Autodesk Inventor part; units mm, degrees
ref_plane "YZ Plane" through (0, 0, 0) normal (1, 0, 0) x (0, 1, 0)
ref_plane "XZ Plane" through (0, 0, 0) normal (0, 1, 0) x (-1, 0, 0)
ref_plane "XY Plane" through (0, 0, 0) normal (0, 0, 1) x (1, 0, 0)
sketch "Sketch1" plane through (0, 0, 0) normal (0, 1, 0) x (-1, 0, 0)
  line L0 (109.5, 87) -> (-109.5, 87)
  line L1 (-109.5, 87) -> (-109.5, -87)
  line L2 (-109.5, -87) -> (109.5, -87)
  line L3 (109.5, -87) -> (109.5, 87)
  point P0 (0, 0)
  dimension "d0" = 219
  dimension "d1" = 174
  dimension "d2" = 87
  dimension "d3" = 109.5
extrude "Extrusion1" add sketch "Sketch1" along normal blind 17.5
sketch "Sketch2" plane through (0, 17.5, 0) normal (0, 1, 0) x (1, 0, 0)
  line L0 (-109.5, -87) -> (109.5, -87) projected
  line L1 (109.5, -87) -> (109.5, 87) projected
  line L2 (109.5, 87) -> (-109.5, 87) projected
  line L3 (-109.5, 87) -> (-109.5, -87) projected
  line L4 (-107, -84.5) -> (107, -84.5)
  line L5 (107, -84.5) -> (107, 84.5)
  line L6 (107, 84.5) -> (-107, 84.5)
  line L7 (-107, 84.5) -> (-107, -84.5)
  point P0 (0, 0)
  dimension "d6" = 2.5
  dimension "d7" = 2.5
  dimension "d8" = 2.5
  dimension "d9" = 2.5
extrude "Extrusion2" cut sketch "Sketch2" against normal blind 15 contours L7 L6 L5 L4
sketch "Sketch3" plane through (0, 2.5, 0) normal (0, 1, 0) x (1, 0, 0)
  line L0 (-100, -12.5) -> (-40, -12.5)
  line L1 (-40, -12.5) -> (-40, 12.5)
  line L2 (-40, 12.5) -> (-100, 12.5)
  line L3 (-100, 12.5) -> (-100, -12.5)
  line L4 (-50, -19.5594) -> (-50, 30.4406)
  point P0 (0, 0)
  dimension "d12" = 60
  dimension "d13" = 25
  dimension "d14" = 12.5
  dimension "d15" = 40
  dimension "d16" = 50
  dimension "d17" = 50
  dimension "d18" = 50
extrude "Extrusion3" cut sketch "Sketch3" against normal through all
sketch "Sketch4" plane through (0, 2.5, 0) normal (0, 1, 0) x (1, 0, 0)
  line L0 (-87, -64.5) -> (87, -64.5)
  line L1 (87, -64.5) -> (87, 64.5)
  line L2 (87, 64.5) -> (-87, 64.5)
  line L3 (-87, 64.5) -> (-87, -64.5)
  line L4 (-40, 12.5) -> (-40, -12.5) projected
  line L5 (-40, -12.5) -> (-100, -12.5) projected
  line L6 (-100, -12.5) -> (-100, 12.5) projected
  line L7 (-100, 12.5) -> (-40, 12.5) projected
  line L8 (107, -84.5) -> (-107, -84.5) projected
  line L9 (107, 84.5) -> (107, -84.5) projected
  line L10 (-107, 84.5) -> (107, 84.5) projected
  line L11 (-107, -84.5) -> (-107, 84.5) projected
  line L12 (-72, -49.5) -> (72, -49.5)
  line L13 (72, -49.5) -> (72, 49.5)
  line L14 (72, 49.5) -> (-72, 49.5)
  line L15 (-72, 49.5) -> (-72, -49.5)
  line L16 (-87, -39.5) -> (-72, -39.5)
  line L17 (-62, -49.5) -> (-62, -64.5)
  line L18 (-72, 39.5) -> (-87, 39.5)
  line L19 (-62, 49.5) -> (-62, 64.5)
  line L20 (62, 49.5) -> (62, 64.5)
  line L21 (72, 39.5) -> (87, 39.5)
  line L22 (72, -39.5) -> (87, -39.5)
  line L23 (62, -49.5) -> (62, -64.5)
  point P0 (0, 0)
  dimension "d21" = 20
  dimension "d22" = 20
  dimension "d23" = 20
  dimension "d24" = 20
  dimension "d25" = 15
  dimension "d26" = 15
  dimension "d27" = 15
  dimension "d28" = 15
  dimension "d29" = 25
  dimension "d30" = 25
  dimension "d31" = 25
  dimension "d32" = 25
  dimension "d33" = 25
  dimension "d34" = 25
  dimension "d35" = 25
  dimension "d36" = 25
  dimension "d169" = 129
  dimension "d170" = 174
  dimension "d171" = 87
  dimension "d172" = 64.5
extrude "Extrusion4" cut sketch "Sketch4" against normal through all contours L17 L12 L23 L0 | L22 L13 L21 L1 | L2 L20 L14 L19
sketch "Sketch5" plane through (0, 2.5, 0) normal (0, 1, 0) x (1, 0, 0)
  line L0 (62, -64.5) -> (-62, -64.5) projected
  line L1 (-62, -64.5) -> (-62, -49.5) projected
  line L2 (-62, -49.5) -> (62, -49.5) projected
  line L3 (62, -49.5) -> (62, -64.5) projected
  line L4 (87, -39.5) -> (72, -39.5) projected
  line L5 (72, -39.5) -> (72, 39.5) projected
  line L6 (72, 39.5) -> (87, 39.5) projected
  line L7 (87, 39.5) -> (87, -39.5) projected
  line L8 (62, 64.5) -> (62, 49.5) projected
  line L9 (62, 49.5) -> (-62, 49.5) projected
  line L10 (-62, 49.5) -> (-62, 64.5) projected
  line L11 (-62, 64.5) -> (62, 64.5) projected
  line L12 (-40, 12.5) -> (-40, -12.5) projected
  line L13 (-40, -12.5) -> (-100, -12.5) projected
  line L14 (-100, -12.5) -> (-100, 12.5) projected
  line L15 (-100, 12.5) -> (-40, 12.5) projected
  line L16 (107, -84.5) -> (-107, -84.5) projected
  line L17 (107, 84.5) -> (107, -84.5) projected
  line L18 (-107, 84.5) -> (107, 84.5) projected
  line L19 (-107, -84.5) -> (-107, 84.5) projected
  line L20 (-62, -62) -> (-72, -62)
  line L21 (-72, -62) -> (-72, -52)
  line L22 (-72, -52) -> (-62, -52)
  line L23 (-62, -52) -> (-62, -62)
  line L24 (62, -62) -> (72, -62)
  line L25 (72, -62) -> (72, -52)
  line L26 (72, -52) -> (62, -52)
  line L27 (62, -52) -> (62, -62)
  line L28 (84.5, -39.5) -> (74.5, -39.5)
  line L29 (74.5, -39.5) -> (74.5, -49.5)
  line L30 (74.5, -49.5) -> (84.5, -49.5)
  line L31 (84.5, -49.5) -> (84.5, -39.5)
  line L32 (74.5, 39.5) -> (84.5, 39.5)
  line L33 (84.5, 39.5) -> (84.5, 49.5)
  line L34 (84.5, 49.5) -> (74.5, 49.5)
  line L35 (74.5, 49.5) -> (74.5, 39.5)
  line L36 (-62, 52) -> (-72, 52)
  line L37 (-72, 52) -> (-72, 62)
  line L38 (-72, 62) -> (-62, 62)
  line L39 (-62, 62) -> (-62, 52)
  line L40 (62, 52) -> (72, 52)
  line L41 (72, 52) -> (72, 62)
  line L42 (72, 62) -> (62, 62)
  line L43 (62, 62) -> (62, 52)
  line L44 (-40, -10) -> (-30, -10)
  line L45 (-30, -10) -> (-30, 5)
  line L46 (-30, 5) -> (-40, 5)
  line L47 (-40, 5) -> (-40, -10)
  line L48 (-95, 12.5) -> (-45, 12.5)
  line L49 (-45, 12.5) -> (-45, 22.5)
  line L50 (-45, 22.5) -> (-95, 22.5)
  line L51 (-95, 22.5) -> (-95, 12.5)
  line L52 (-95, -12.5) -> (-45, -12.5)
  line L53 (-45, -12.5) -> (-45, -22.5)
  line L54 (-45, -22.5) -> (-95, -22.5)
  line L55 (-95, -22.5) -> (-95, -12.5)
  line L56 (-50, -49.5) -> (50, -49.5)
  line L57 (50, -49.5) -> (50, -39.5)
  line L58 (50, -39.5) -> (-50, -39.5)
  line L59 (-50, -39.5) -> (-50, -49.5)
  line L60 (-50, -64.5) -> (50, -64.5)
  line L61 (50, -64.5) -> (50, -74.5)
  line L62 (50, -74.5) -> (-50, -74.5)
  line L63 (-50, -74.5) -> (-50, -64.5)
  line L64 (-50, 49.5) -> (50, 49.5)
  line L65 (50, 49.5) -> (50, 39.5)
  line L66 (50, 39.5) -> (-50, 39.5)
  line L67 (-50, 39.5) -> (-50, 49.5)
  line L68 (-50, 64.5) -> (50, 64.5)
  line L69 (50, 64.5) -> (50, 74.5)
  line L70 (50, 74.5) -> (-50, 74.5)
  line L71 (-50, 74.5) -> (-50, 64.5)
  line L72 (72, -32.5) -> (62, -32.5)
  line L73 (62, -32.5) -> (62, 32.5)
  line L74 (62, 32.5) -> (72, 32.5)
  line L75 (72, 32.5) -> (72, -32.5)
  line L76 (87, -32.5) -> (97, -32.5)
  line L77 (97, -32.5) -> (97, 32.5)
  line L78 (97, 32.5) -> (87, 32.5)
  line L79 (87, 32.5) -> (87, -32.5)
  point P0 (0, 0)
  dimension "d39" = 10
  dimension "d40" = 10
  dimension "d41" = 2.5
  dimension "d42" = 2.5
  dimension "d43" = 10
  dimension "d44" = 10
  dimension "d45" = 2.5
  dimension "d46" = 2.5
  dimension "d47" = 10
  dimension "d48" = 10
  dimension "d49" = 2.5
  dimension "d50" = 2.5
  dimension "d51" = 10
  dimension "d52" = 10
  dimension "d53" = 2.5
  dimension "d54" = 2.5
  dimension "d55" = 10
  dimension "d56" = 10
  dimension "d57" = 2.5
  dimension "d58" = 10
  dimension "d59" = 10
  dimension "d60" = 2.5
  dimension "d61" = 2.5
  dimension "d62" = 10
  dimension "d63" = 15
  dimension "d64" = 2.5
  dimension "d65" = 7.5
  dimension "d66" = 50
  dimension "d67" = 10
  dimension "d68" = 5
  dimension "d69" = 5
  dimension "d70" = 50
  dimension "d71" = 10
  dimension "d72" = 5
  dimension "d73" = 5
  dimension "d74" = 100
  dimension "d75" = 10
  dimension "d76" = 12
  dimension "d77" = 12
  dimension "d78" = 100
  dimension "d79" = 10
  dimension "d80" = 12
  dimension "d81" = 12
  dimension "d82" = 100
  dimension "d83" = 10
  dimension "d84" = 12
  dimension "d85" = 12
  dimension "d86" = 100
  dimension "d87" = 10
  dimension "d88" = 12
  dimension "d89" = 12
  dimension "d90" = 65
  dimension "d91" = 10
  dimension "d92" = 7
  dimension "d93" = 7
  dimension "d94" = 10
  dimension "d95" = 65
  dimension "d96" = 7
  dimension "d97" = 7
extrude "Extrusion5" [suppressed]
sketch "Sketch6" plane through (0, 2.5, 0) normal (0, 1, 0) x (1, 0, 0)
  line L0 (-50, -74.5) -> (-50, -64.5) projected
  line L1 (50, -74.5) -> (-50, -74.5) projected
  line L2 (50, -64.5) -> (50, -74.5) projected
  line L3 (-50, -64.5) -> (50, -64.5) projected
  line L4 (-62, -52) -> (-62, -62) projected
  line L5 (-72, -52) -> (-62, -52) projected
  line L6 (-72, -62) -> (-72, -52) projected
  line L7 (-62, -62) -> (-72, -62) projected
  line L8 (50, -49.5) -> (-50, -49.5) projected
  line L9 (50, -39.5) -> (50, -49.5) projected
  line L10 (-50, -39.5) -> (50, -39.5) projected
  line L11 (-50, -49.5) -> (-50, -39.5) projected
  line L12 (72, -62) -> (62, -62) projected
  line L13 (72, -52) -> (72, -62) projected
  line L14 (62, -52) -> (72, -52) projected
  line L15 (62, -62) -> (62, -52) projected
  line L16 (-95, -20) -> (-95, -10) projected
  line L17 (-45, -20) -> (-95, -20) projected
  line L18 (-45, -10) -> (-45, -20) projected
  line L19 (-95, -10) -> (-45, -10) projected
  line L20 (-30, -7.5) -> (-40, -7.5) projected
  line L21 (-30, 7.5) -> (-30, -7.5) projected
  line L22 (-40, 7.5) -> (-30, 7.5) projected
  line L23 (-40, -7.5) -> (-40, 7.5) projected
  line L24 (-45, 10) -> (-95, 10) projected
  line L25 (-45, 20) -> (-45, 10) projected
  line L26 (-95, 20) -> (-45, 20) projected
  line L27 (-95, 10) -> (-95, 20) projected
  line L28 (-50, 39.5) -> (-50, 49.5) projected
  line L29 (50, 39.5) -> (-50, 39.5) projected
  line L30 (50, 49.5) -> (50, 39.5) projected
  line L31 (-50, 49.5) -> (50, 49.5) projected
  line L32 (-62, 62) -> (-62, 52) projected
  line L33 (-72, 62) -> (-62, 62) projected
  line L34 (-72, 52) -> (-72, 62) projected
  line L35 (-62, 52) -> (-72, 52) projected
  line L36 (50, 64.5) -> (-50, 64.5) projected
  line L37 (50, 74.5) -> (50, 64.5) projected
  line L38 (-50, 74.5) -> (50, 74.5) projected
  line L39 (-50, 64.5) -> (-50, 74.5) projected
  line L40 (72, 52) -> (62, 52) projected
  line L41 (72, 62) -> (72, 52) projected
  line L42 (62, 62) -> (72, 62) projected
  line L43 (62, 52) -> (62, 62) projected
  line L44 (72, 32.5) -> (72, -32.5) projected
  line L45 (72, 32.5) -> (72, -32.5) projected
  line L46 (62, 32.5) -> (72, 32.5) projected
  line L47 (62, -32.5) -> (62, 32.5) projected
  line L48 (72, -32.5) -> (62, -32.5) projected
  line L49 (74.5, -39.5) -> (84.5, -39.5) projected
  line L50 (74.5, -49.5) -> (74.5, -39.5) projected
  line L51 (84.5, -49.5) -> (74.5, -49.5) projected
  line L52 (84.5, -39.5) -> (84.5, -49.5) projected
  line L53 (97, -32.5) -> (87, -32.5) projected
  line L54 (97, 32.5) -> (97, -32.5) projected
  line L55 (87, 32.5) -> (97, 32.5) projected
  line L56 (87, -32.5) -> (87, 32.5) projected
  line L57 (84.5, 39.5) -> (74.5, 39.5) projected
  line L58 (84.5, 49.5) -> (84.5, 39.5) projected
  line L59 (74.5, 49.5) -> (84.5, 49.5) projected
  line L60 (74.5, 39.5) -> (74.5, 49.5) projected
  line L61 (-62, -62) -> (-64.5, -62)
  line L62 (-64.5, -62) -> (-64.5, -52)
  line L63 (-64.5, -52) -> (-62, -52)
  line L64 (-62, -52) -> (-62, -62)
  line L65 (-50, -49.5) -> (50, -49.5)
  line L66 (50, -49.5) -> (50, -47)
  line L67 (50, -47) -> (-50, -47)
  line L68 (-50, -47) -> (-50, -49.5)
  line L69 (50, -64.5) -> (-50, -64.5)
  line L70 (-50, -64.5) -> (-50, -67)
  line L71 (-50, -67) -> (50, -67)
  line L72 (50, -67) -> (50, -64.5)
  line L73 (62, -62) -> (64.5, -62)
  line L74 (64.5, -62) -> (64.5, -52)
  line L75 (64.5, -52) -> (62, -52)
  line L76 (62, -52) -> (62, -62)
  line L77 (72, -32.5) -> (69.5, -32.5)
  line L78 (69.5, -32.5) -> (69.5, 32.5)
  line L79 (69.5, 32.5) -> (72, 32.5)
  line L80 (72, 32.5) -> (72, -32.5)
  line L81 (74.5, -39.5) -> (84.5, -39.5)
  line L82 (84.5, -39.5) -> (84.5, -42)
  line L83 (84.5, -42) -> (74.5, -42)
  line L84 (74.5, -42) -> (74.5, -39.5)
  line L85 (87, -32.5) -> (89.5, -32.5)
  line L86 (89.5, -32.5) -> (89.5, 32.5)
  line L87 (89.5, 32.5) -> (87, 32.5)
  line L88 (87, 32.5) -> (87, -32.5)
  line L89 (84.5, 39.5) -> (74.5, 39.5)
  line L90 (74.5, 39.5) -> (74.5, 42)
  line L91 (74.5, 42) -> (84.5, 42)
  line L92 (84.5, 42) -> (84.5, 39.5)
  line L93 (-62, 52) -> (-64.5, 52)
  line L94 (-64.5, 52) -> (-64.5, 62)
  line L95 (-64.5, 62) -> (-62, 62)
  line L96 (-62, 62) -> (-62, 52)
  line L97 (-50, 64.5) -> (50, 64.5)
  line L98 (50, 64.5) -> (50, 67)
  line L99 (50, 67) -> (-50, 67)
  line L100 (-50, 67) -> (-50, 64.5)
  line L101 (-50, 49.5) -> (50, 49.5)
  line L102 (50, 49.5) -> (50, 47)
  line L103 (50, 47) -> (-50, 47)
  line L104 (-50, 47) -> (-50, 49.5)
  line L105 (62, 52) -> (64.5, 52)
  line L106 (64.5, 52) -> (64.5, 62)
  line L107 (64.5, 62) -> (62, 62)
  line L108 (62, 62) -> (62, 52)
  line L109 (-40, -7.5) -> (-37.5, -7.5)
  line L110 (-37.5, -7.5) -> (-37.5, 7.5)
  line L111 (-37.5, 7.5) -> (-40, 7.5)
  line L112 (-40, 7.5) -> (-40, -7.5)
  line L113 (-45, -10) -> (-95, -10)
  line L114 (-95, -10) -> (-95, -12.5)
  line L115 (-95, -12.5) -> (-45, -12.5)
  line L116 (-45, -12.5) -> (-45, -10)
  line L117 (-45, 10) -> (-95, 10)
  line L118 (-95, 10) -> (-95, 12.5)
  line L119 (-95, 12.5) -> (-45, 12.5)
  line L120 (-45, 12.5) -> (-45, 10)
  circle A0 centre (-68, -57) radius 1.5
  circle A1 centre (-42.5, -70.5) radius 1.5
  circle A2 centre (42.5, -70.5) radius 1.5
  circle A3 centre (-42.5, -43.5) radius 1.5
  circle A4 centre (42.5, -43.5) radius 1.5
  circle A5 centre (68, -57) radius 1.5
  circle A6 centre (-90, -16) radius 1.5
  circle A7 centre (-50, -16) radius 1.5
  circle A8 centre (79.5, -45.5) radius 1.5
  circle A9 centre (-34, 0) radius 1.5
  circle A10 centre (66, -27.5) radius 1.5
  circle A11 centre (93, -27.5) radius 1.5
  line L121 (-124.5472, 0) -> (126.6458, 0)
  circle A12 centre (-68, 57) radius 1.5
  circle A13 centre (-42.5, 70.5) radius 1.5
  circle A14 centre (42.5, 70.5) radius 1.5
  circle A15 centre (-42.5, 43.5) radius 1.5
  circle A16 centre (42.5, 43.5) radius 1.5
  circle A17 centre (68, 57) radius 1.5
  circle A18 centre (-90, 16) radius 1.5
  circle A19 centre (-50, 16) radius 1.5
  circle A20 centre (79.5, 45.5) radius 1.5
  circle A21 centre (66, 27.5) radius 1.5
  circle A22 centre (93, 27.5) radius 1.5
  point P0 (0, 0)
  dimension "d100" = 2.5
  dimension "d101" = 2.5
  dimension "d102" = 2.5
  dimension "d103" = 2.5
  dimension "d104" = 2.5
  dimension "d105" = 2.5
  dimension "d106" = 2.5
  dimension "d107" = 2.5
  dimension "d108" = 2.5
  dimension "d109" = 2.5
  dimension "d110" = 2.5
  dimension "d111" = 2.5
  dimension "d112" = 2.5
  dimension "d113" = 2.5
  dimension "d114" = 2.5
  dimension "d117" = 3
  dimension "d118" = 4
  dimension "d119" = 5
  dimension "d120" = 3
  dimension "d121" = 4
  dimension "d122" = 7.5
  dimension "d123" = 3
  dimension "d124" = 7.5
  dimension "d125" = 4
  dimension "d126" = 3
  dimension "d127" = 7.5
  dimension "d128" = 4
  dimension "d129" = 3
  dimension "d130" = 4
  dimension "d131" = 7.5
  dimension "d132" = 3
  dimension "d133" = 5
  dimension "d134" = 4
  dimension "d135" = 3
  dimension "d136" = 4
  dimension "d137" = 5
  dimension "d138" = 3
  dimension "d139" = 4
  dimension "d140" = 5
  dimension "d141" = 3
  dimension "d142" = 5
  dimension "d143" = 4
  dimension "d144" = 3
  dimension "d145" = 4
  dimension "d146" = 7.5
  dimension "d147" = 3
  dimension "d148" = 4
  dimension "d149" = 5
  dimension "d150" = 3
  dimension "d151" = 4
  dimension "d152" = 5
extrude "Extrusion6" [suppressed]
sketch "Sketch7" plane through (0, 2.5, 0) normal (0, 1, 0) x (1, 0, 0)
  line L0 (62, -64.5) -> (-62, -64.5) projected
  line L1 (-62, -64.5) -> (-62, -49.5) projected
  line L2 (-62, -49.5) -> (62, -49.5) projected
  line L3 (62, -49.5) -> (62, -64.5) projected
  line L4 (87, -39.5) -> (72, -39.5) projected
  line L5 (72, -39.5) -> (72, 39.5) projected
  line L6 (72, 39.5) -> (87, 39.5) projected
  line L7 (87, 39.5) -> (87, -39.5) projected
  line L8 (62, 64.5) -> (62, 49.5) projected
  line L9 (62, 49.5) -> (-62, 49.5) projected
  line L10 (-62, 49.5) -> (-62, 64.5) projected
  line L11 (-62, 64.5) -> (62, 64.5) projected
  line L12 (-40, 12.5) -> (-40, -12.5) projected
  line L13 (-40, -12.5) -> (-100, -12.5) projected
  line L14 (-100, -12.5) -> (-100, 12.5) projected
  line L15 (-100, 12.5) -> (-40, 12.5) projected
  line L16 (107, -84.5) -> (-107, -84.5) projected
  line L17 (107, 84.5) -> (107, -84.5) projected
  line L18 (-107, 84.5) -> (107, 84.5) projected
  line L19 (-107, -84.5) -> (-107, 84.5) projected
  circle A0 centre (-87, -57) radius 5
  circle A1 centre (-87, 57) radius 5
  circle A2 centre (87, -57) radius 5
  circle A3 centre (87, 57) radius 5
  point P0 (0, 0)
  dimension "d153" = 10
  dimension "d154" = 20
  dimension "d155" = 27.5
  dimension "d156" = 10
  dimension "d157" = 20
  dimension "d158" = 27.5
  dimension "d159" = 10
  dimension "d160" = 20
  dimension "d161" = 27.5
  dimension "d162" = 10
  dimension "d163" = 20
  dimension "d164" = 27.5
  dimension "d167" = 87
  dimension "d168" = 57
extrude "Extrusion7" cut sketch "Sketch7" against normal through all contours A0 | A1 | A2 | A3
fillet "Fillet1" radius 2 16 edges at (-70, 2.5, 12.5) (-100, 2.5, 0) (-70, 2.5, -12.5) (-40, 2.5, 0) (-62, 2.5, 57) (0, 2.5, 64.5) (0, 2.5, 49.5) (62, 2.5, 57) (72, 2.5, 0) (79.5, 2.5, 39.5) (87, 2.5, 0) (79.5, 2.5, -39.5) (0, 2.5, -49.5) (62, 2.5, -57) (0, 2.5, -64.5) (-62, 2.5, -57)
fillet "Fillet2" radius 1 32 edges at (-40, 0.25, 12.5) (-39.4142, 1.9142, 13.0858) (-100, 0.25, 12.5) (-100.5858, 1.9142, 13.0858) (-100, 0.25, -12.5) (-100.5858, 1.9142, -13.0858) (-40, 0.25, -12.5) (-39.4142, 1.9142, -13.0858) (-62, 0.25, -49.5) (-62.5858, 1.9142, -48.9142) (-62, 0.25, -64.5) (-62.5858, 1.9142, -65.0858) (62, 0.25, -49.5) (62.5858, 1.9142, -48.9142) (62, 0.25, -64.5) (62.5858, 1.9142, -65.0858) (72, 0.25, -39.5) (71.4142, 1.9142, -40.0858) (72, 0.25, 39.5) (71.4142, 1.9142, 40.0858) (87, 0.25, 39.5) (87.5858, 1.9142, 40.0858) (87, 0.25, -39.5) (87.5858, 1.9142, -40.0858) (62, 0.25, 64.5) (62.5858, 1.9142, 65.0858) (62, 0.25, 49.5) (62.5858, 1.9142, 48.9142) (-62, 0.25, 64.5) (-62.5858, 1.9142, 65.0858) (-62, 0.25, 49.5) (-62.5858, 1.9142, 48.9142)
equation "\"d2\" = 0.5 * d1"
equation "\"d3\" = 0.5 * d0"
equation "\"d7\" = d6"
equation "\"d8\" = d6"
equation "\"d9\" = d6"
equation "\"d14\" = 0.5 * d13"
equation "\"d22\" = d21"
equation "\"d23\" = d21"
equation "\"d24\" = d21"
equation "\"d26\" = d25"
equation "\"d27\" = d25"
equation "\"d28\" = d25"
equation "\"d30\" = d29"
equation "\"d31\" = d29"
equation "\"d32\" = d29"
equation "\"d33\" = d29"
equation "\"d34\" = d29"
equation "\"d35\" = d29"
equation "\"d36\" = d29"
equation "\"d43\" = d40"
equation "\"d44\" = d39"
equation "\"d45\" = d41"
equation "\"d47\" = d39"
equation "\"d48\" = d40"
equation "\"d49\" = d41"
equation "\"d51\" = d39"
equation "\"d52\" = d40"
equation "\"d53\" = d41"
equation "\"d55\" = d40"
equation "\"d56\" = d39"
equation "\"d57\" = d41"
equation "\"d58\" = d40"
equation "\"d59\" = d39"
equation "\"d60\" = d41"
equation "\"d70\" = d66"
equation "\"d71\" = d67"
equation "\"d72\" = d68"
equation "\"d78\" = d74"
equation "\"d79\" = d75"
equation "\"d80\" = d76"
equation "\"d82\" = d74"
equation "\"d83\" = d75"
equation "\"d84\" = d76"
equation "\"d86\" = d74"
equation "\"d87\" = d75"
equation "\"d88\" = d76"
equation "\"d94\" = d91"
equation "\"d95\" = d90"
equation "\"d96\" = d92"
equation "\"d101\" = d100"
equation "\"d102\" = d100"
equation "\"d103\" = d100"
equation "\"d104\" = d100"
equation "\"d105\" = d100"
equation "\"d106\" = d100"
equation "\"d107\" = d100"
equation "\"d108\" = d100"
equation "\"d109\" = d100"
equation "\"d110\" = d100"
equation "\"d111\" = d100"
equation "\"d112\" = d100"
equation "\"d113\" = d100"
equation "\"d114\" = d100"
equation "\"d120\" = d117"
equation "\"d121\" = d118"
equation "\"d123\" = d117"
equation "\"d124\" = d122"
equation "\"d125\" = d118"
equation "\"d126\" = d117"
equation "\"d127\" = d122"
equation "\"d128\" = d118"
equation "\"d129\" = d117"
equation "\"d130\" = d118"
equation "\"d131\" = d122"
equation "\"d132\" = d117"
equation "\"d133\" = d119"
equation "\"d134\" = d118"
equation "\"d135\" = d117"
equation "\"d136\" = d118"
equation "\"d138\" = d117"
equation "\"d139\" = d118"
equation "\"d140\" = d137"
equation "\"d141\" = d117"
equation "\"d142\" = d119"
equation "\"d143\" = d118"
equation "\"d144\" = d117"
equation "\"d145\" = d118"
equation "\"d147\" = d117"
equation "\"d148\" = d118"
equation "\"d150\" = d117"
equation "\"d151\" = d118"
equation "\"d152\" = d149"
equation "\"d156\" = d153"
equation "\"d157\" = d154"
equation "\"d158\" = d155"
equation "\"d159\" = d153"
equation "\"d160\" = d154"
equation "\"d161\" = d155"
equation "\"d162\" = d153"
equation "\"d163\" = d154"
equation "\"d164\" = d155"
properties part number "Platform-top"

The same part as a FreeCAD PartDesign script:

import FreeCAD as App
import Part
import Sketcher
from FreeCAD import Vector
Q = App.Units.Quantity


def edges_at(feature, points):
    """Names of the edges that pass closest to the given points."""
    edges = feature.Shape.Edges
    near = lambda p: min(range(len(edges)), key=lambda i: edges[i].distToShape(Part.Vertex(*p))[0])
    return sorted({f"Edge{near(p) + 1}" for p in points})


def add_polygon(sketch, points):
    """Adds a closed chain of lines whose ends are joined by coincident constraints."""
    first, n = sketch.GeometryCount, len(points)
    for a, b in zip(points, points[1:] + points[:1]):
        sketch.addGeometry(Part.LineSegment(App.Vector(*a, 0), App.Vector(*b, 0)), False)
    for i in range(n):
        sketch.addConstraint(Sketcher.Constraint("Coincident", first + i, 2, first + (i + 1) % n, 1))

doc = App.newDocument("Part")
params = doc.addObject("Spreadsheet::Sheet", "Params")
for row, (alias, value) in enumerate([
    ("sketch1_width", "219 mm"),
    ("sketch1_height", "174 mm"),
    ("pad1_length", "17.5 mm"),
    ("sketch2_width", "214 mm"),
    ("sketch2_height", "169 mm"),
    ("pocket1_length", "15 mm"),
    ("sketch3_width", "60 mm"),
    ("sketch3_height", "25 mm"),
    ("sketch4_width", "15 mm"),
    ("sketch5_diameter", "10 mm"),
    ("fillet_radius", "2 mm"),
    ("fillet2_radius", "1 mm"),
], start=1):
    params.set(f"A{row}", alias)
    params.set(f"B{row}", "=" + value)
    params.setAlias(f"B{row}", alias)

body = doc.addObject("PartDesign::Body", "Body")

# Sketch on XZ plane
sketch1 = doc.addObject("Sketcher::SketchObject", "Sketch")
body.addObject(sketch1)
sketch1.AttachmentSupport = (doc.XZ_Plane, [""])
sketch1.MapMode = "FlatFace"
add_polygon(sketch1, [(-110, -87), (-110, 87), (110, 87), (110, -87)])  # lines 0-3
sketch1.addConstraint([
    Sketcher.Constraint("Vertical", 0),
    Sketcher.Constraint("Horizontal", 1),
    Sketcher.Constraint("Vertical", 2),
    Sketcher.Constraint("Horizontal", 3),
    Sketcher.Constraint("Symmetric", 0, 2, 2, 2, -1, 1),
    Sketcher.Constraint("DistanceX", 1, 1, 1, 2, Q("219 mm")),
    Sketcher.Constraint("DistanceY", 0, 1, 0, 2, Q("174 mm")),
])
sketch1.setExpression("Constraints[9]", "Params.sketch1_width")
sketch1.setExpression("Constraints[10]", "Params.sketch1_height")
pad1 = doc.addObject("PartDesign::Pad", "Pad")
body.addObject(pad1)
pad1.Profile = sketch1
pad1.setExpression("Length", "Params.pad1_length")
pad1.Reversed = True

# Sketch on XZ plane
sketch2 = doc.addObject("Sketcher::SketchObject", "Sketch001")
body.addObject(sketch2)
sketch2.AttachmentSupport = (doc.XZ_Plane, [""])
sketch2.MapMode = "FlatFace"
sketch2.AttachmentOffset = App.Placement(Vector(0, 0, -17.5), App.Rotation())
add_polygon(sketch2, [(-107, -84), (-107, 84), (107, 84), (107, -84)])  # lines 0-3
sketch2.addConstraint([
    Sketcher.Constraint("Vertical", 0),
    Sketcher.Constraint("Horizontal", 1),
    Sketcher.Constraint("Vertical", 2),
    Sketcher.Constraint("Horizontal", 3),
    Sketcher.Constraint("Symmetric", 0, 2, 2, 2, -1, 1),
    Sketcher.Constraint("DistanceX", 1, 1, 1, 2, Q("214 mm")),
    Sketcher.Constraint("DistanceY", 0, 1, 0, 2, Q("169 mm")),
])
sketch2.setExpression("Constraints[9]", "Params.sketch2_width")
sketch2.setExpression("Constraints[10]", "Params.sketch2_height")
pocket1 = doc.addObject("PartDesign::Pocket", "Pocket")
body.addObject(pocket1)
pocket1.Profile = sketch2
pocket1.setExpression("Length", "Params.pocket1_length")
pocket1.Reversed = True

# Sketch on XZ plane
sketch3 = doc.addObject("Sketcher::SketchObject", "Sketch002")
body.addObject(sketch3)
sketch3.AttachmentSupport = (doc.XZ_Plane, [""])
sketch3.MapMode = "FlatFace"
sketch3.AttachmentOffset = App.Placement(Vector(0, 0, -2.5), App.Rotation())
add_polygon(sketch3, [(-100, -12), (-100, 12), (-40, 12), (-40, -12)])  # lines 0-3
sketch3.addConstraint([
    Sketcher.Constraint("Vertical", 0),
    Sketcher.Constraint("Horizontal", 1),
    Sketcher.Constraint("Vertical", 2),
    Sketcher.Constraint("Horizontal", 3),
    Sketcher.Constraint("DistanceX", 1, 1, 1, 2, Q("60 mm")),
    Sketcher.Constraint("DistanceY", 0, 1, 0, 2, Q("25 mm")),
    Sketcher.Constraint("DistanceX", 1, 2, -1, 1, Q("40 mm")),
    Sketcher.Constraint("DistanceY", -1, 1, 0, 2, Q("12.5 mm")),
])
sketch3.setExpression("Constraints[8]", "Params.sketch3_width")
sketch3.setExpression("Constraints[9]", "Params.sketch3_height")
pocket2 = doc.addObject("PartDesign::Pocket", "Pocket001")
body.addObject(pocket2)
pocket2.Profile = sketch3
pocket2.Type = "ThroughAll"
pocket2.Reversed = True

# Sketch on XZ plane
sketch4 = doc.addObject("Sketcher::SketchObject", "Sketch003")
body.addObject(sketch4)
sketch4.AttachmentSupport = (doc.XZ_Plane, [""])
sketch4.MapMode = "FlatFace"
sketch4.AttachmentOffset = App.Placement(Vector(0, 0, -2.5), App.Rotation())
add_polygon(sketch4, [(-62, 50), (-62, 64), (62, 64), (62, 50)])  # lines 0-3
add_polygon(sketch4, [(72, 40), (87, 40), (87, -40), (72, -40)])  # lines 4-7
add_polygon(sketch4, [(62, -64), (-62, -64), (-62, -50), (62, -50)])  # lines 8-11
sketch4.addConstraint([
    Sketcher.Constraint("Vertical", 0),
    Sketcher.Constraint("Horizontal", 1),
    Sketcher.Constraint("Vertical", 2),
    Sketcher.Constraint("Horizontal", 3),
    Sketcher.Constraint("Horizontal", 4),
    Sketcher.Constraint("Vertical", 5),
    Sketcher.Constraint("Horizontal", 6),
    Sketcher.Constraint("Vertical", 7),
    Sketcher.Constraint("Horizontal", 8),
    Sketcher.Constraint("Vertical", 9),
    Sketcher.Constraint("Horizontal", 10),
    Sketcher.Constraint("Vertical", 11),
    Sketcher.Constraint("Symmetric", 1, 2, 8, 2, -1, 1),
    Sketcher.Constraint("Symmetric", 3, 2, 10, 2, -1, 1),
    Sketcher.Constraint("Vertical", 3, 2, 8, 2),
    Sketcher.Constraint("Equal", 6, 0),
    Sketcher.Constraint("DistanceX", 4, 1, 4, 2, Q("15 mm")),
    Sketcher.Constraint("DistanceX", -1, 1, 4, 2, Q("87 mm")),
    Sketcher.Constraint("DistanceX", 2, 2, 4, 2, Q("25 mm")),
    Sketcher.Constraint("DistanceY", 4, 2, 1, 2, Q("25 mm")),
    Sketcher.Constraint("DistanceY", 8, 2, 0, 2, Q("129 mm")),
    Sketcher.Constraint("DistanceY", 8, 2, 6, 2, Q("25 mm")),
])
sketch4.setExpression("Constraints[28]", "Params.sketch4_width")
pocket3 = doc.addObject("PartDesign::Pocket", "Pocket002")
body.addObject(pocket3)
pocket3.Profile = sketch4
pocket3.Type = "ThroughAll"
pocket3.Reversed = True

# Sketch on XZ plane
sketch5 = doc.addObject("Sketcher::SketchObject", "Sketch004")
body.addObject(sketch5)
sketch5.AttachmentSupport = (doc.XZ_Plane, [""])
sketch5.MapMode = "FlatFace"
sketch5.AttachmentOffset = App.Placement(Vector(0, 0, -2.5), App.Rotation())
sketch5.addGeometry([
    Part.Circle(Vector(-87, 57, 0), Vector(0, 0, 1), 5),
    Part.Circle(Vector(-87, -57, 0), Vector(0, 0, 1), 5),
    Part.Circle(Vector(87, 57, 0), Vector(0, 0, 1), 5),
    Part.Circle(Vector(87, -57, 0), Vector(0, 0, 1), 5),
], False)
sketch5.addConstraint([
    Sketcher.Constraint("Equal", 0, 1),
    Sketcher.Constraint("Equal", 1, 2),
    Sketcher.Constraint("Equal", 2, 3),
    Sketcher.Constraint("Symmetric", 1, 3, 2, 3, -1, 1),
    Sketcher.Constraint("Symmetric", 0, 3, 3, 3, -1, 1),
    Sketcher.Constraint("Symmetric", 0, 3, 2, 3, -2),
    Sketcher.Constraint("Diameter", 0, Q("10 mm")),
    Sketcher.Constraint("DistanceX", 0, 3, -1, 1, Q("87 mm")),
    Sketcher.Constraint("DistanceY", -1, 1, 0, 3, Q("57 mm")),
])
sketch5.setExpression("Constraints[6]", "Params.sketch5_diameter")
pocket4 = doc.addObject("PartDesign::Pocket", "Pocket003")
body.addObject(pocket4)
pocket4.Profile = sketch5
pocket4.Type = "ThroughAll"
pocket4.Reversed = True
doc.recompute()

fillet = doc.addObject("PartDesign::Fillet", "Fillet")
body.addObject(fillet)
fillet.Base = (pocket4, edges_at(pocket4, [
    (-70, 2.5, 12.5),
    (-100, 2.5, 0),
    (-70, 2.5, -12.5),
    (-40, 2.5, 0),
    (-62, 2.5, 57),
    (0, 2.5, 64.5),
    (0, 2.5, 49.5),
    (62, 2.5, 57),
    (72, 2.5, 0),
    (79.5, 2.5, 39.5),
    (87, 2.5, 0),
    (79.5, 2.5, -39.5),
    (0, 2.5, -49.5),
    (62, 2.5, -57),
    (0, 2.5, -64.5),
    (-62, 2.5, -57),
]))
fillet.setExpression("Radius", "Params.fillet_radius")
doc.recompute()

fillet2 = doc.addObject("PartDesign::Fillet", "Fillet001")
body.addObject(fillet2)
fillet2.Base = (fillet, edges_at(fillet, [
    (-40, 0.25, 12.5),
    (-39.414, 1.914, 13.086),
    (-100, 0.25, 12.5),
    (-100.586, 1.914, 13.086),
    (-100, 0.25, -12.5),
    (-100.586, 1.914, -13.086),
    (-40, 0.25, -12.5),
    (-39.414, 1.914, -13.086),
    (-62, 0.25, -49.5),
    (-62.586, 1.914, -48.914),
    (-62, 0.25, -64.5),
    (-62.586, 1.914, -65.086),
    (62, 0.25, -49.5),
    (62.586, 1.914, -48.914),
    (62, 0.25, -64.5),
    (62.586, 1.914, -65.086),
    (72, 0.25, -39.5),
    (71.414, 1.914, -40.086),
    (72, 0.25, 39.5),
    (71.414, 1.914, 40.086),
    (87, 0.25, 39.5),
    (87.586, 1.914, 40.086),
    (87, 0.25, -39.5),
    (87.586, 1.914, -40.086),
    (62, 0.25, 64.5),
    (62.586, 1.914, 65.086),
    (62, 0.25, 49.5),
    (62.586, 1.914, 48.914),
    (-62, 0.25, 64.5),
    (-62.586, 1.914, 65.086),
    (-62, 0.25, 49.5),
    (-62.586, 1.914, 48.914),
]))
fillet2.setExpression("Radius", "Params.fillet2_radius")

doc.recompute()
